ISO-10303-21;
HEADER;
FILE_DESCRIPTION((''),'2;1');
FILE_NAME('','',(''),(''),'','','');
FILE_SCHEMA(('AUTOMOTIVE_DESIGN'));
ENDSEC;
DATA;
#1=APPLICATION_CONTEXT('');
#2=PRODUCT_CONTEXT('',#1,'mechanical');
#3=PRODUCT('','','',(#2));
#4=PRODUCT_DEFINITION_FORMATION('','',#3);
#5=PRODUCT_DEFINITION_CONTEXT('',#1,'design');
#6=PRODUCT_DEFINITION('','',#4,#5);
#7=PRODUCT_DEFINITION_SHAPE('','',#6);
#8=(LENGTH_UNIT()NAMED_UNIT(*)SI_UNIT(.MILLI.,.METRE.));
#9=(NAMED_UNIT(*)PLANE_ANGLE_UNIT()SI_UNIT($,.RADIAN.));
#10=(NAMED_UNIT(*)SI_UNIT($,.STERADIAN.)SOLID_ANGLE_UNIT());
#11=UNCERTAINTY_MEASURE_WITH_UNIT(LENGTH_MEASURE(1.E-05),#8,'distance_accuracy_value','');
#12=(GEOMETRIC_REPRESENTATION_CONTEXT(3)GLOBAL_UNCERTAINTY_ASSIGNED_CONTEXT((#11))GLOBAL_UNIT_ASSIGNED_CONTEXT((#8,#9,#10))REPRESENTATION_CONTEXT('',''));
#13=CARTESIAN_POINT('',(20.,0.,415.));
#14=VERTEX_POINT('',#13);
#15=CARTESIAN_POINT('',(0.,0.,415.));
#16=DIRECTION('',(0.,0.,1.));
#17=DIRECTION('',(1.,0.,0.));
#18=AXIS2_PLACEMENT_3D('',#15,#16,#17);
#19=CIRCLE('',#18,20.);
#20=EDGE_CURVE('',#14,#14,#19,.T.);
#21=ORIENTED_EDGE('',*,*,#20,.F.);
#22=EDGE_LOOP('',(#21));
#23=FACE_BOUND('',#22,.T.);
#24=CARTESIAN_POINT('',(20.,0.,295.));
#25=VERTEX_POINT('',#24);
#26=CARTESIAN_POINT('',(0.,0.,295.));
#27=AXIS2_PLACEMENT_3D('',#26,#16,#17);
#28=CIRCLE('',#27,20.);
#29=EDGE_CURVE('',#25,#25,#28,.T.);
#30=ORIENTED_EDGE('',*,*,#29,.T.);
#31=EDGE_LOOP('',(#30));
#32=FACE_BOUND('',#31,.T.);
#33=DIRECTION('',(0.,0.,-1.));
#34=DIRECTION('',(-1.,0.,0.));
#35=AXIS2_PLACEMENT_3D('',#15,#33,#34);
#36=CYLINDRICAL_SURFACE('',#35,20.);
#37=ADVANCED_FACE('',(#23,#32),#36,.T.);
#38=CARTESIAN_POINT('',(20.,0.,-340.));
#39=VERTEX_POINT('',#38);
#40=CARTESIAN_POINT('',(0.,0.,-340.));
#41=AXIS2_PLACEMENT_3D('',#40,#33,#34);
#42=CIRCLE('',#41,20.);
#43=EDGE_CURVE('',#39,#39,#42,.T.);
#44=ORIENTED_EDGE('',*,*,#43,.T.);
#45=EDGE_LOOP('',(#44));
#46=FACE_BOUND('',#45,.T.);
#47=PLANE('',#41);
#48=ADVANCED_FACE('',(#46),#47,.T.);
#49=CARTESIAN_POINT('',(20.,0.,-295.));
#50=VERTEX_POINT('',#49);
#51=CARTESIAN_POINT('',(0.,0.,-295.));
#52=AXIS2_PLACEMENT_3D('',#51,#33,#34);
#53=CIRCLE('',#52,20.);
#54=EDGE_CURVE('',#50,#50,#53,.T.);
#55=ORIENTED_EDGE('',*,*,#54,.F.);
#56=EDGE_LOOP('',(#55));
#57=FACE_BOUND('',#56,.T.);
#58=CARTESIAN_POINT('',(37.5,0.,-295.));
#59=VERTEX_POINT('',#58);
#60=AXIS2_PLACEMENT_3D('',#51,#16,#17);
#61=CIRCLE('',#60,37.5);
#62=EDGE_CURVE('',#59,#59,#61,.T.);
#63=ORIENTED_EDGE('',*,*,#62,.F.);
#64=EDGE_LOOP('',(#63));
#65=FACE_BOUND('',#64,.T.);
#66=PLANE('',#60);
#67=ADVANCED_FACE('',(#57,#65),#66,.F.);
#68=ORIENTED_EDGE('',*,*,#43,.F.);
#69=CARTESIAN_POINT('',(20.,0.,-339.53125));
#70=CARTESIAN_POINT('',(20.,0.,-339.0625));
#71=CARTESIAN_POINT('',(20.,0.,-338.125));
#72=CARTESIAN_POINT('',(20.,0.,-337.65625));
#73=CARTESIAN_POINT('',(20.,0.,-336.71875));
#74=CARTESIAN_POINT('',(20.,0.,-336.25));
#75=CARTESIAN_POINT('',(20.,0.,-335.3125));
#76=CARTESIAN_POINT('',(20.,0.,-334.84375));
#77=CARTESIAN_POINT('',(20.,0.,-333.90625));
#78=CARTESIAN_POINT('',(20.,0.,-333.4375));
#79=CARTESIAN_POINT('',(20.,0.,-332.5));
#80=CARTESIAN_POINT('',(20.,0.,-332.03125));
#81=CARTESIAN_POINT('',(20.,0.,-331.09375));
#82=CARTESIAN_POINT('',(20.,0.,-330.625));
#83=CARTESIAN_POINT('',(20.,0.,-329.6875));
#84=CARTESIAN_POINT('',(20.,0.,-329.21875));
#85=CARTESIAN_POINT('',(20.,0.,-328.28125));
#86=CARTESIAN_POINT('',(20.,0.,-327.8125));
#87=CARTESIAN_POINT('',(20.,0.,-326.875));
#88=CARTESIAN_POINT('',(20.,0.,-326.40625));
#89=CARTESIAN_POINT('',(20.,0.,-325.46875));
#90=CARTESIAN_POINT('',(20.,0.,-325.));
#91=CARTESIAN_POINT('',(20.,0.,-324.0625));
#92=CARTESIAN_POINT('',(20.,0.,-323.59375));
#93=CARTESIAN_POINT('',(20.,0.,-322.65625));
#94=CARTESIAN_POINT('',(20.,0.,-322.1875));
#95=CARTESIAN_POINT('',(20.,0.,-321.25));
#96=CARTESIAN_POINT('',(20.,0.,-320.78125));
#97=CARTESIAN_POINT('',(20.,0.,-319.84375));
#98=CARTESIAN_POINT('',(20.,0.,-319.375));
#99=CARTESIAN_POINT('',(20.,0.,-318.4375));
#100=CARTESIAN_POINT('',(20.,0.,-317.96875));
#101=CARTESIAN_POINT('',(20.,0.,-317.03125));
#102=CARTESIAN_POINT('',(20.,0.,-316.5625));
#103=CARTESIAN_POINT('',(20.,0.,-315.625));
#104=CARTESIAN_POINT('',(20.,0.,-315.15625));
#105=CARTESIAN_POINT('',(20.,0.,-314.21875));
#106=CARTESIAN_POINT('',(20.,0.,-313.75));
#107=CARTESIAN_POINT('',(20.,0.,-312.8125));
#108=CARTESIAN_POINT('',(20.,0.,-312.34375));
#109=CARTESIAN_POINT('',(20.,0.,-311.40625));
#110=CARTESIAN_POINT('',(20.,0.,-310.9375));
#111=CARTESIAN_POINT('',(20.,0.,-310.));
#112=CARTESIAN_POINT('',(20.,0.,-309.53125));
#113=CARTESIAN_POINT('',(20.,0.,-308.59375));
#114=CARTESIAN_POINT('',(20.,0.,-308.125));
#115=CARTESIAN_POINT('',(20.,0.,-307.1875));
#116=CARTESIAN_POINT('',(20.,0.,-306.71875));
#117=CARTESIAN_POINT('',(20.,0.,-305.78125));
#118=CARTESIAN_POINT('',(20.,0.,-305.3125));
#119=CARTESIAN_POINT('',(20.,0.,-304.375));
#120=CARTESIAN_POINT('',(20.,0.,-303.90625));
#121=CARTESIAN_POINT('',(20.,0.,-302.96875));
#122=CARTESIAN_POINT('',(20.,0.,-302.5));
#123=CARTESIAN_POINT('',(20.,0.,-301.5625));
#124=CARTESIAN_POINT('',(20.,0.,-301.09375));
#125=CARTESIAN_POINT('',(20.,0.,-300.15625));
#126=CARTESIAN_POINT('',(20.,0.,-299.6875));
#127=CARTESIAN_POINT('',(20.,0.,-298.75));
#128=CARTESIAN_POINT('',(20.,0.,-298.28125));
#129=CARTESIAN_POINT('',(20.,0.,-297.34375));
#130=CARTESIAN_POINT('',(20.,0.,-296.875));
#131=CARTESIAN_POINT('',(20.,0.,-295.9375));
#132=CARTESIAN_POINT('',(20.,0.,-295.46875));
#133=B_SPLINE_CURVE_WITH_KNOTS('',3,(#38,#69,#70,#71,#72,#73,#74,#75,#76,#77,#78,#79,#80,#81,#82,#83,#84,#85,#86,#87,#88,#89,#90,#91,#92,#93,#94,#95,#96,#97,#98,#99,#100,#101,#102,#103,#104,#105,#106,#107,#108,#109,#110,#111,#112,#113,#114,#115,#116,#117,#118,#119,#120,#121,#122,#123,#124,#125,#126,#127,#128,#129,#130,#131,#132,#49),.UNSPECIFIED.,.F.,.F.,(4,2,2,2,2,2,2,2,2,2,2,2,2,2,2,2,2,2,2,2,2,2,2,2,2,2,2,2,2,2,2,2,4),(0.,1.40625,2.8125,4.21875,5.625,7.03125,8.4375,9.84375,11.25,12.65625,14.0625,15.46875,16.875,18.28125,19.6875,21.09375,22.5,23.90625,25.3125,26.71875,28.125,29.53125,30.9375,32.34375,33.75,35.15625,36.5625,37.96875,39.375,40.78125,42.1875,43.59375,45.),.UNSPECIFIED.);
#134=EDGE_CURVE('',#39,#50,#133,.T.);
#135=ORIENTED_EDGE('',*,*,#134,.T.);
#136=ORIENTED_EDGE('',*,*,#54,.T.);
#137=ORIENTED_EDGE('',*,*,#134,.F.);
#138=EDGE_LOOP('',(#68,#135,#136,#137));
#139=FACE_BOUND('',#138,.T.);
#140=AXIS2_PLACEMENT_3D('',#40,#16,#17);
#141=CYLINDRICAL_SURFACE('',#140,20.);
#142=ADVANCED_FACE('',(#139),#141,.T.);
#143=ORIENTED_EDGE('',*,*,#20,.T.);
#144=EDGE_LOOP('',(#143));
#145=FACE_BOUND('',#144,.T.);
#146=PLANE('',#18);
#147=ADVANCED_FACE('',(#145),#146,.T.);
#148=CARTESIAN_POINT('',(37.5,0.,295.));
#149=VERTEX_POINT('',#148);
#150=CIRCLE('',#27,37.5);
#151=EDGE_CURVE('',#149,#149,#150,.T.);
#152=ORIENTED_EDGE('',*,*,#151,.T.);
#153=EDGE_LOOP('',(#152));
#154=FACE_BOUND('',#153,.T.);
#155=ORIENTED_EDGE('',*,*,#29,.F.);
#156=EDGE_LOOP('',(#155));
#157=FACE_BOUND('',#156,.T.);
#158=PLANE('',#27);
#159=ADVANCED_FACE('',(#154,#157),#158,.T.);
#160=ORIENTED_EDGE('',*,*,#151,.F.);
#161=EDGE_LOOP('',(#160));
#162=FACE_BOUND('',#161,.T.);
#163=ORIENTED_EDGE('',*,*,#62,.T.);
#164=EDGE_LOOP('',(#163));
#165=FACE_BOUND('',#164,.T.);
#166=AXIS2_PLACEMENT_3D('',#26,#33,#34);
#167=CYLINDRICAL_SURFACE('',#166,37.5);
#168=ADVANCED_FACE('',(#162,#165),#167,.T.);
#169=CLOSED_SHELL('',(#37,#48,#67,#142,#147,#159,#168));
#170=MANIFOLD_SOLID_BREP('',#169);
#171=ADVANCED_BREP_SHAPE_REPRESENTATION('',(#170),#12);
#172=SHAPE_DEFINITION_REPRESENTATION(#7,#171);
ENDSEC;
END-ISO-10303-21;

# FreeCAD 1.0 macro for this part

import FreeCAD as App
import Part
import Sketcher

V = App.Vector

doc = App.newDocument("Part")
body = doc.addObject("PartDesign::Body", "Body")

# Sketch on XY plane
sketch1 = doc.addObject("Sketcher::SketchObject", "Sketch")
body.addObject(sketch1)
sketch1.AttachmentSupport = (doc.XY_Plane, [""])
sketch1.MapMode = "FlatFace"
sketch1.addGeometry(Part.Circle(V(0, 0, 0), V(0, 0, 1), 37.5), False)
sketch1.addConstraint([
    Sketcher.Constraint("Coincident", 0, 3, -1, 1),
    Sketcher.Constraint("Diameter", 0, 75.0),
])
pad1 = doc.addObject("PartDesign::Pad", "Pad")
body.addObject(pad1)
pad1.Profile = sketch1
pad1.Length = 590
pad1.Midplane = True

# Sketch on XY plane
sketch2 = doc.addObject("Sketcher::SketchObject", "Sketch001")
body.addObject(sketch2)
sketch2.AttachmentSupport = (doc.XY_Plane, [""])
sketch2.MapMode = "FlatFace"
sketch2.AttachmentOffset = App.Placement(V(0, 0, 295), App.Rotation())
sketch2.addGeometry(Part.Circle(V(0, 0, 0), V(0, 0, 1), 20), False)
sketch2.addConstraint([
    Sketcher.Constraint("Coincident", 0, 3, -1, 1),
    Sketcher.Constraint("Diameter", 0, 40.0),
])
pad2 = doc.addObject("PartDesign::Pad", "Pad001")
body.addObject(pad2)
pad2.Profile = sketch2
pad2.Length = 120

# Sketch on XY plane
sketch3 = doc.addObject("Sketcher::SketchObject", "Sketch002")
body.addObject(sketch3)
sketch3.AttachmentSupport = (doc.XY_Plane, [""])
sketch3.MapMode = "FlatFace"
sketch3.AttachmentOffset = App.Placement(V(0, 0, -340), App.Rotation())
sketch3.addGeometry(Part.Circle(V(0, 0, 0), V(0, 0, 1), 20), False)
sketch3.addConstraint([
    Sketcher.Constraint("Coincident", 0, 3, -1, 1),
    Sketcher.Constraint("Diameter", 0, 40.0),
])
pad3 = doc.addObject("PartDesign::Pad", "Pad002")
body.addObject(pad3)
pad3.Profile = sketch3
pad3.Length = 45

doc.recompute()
